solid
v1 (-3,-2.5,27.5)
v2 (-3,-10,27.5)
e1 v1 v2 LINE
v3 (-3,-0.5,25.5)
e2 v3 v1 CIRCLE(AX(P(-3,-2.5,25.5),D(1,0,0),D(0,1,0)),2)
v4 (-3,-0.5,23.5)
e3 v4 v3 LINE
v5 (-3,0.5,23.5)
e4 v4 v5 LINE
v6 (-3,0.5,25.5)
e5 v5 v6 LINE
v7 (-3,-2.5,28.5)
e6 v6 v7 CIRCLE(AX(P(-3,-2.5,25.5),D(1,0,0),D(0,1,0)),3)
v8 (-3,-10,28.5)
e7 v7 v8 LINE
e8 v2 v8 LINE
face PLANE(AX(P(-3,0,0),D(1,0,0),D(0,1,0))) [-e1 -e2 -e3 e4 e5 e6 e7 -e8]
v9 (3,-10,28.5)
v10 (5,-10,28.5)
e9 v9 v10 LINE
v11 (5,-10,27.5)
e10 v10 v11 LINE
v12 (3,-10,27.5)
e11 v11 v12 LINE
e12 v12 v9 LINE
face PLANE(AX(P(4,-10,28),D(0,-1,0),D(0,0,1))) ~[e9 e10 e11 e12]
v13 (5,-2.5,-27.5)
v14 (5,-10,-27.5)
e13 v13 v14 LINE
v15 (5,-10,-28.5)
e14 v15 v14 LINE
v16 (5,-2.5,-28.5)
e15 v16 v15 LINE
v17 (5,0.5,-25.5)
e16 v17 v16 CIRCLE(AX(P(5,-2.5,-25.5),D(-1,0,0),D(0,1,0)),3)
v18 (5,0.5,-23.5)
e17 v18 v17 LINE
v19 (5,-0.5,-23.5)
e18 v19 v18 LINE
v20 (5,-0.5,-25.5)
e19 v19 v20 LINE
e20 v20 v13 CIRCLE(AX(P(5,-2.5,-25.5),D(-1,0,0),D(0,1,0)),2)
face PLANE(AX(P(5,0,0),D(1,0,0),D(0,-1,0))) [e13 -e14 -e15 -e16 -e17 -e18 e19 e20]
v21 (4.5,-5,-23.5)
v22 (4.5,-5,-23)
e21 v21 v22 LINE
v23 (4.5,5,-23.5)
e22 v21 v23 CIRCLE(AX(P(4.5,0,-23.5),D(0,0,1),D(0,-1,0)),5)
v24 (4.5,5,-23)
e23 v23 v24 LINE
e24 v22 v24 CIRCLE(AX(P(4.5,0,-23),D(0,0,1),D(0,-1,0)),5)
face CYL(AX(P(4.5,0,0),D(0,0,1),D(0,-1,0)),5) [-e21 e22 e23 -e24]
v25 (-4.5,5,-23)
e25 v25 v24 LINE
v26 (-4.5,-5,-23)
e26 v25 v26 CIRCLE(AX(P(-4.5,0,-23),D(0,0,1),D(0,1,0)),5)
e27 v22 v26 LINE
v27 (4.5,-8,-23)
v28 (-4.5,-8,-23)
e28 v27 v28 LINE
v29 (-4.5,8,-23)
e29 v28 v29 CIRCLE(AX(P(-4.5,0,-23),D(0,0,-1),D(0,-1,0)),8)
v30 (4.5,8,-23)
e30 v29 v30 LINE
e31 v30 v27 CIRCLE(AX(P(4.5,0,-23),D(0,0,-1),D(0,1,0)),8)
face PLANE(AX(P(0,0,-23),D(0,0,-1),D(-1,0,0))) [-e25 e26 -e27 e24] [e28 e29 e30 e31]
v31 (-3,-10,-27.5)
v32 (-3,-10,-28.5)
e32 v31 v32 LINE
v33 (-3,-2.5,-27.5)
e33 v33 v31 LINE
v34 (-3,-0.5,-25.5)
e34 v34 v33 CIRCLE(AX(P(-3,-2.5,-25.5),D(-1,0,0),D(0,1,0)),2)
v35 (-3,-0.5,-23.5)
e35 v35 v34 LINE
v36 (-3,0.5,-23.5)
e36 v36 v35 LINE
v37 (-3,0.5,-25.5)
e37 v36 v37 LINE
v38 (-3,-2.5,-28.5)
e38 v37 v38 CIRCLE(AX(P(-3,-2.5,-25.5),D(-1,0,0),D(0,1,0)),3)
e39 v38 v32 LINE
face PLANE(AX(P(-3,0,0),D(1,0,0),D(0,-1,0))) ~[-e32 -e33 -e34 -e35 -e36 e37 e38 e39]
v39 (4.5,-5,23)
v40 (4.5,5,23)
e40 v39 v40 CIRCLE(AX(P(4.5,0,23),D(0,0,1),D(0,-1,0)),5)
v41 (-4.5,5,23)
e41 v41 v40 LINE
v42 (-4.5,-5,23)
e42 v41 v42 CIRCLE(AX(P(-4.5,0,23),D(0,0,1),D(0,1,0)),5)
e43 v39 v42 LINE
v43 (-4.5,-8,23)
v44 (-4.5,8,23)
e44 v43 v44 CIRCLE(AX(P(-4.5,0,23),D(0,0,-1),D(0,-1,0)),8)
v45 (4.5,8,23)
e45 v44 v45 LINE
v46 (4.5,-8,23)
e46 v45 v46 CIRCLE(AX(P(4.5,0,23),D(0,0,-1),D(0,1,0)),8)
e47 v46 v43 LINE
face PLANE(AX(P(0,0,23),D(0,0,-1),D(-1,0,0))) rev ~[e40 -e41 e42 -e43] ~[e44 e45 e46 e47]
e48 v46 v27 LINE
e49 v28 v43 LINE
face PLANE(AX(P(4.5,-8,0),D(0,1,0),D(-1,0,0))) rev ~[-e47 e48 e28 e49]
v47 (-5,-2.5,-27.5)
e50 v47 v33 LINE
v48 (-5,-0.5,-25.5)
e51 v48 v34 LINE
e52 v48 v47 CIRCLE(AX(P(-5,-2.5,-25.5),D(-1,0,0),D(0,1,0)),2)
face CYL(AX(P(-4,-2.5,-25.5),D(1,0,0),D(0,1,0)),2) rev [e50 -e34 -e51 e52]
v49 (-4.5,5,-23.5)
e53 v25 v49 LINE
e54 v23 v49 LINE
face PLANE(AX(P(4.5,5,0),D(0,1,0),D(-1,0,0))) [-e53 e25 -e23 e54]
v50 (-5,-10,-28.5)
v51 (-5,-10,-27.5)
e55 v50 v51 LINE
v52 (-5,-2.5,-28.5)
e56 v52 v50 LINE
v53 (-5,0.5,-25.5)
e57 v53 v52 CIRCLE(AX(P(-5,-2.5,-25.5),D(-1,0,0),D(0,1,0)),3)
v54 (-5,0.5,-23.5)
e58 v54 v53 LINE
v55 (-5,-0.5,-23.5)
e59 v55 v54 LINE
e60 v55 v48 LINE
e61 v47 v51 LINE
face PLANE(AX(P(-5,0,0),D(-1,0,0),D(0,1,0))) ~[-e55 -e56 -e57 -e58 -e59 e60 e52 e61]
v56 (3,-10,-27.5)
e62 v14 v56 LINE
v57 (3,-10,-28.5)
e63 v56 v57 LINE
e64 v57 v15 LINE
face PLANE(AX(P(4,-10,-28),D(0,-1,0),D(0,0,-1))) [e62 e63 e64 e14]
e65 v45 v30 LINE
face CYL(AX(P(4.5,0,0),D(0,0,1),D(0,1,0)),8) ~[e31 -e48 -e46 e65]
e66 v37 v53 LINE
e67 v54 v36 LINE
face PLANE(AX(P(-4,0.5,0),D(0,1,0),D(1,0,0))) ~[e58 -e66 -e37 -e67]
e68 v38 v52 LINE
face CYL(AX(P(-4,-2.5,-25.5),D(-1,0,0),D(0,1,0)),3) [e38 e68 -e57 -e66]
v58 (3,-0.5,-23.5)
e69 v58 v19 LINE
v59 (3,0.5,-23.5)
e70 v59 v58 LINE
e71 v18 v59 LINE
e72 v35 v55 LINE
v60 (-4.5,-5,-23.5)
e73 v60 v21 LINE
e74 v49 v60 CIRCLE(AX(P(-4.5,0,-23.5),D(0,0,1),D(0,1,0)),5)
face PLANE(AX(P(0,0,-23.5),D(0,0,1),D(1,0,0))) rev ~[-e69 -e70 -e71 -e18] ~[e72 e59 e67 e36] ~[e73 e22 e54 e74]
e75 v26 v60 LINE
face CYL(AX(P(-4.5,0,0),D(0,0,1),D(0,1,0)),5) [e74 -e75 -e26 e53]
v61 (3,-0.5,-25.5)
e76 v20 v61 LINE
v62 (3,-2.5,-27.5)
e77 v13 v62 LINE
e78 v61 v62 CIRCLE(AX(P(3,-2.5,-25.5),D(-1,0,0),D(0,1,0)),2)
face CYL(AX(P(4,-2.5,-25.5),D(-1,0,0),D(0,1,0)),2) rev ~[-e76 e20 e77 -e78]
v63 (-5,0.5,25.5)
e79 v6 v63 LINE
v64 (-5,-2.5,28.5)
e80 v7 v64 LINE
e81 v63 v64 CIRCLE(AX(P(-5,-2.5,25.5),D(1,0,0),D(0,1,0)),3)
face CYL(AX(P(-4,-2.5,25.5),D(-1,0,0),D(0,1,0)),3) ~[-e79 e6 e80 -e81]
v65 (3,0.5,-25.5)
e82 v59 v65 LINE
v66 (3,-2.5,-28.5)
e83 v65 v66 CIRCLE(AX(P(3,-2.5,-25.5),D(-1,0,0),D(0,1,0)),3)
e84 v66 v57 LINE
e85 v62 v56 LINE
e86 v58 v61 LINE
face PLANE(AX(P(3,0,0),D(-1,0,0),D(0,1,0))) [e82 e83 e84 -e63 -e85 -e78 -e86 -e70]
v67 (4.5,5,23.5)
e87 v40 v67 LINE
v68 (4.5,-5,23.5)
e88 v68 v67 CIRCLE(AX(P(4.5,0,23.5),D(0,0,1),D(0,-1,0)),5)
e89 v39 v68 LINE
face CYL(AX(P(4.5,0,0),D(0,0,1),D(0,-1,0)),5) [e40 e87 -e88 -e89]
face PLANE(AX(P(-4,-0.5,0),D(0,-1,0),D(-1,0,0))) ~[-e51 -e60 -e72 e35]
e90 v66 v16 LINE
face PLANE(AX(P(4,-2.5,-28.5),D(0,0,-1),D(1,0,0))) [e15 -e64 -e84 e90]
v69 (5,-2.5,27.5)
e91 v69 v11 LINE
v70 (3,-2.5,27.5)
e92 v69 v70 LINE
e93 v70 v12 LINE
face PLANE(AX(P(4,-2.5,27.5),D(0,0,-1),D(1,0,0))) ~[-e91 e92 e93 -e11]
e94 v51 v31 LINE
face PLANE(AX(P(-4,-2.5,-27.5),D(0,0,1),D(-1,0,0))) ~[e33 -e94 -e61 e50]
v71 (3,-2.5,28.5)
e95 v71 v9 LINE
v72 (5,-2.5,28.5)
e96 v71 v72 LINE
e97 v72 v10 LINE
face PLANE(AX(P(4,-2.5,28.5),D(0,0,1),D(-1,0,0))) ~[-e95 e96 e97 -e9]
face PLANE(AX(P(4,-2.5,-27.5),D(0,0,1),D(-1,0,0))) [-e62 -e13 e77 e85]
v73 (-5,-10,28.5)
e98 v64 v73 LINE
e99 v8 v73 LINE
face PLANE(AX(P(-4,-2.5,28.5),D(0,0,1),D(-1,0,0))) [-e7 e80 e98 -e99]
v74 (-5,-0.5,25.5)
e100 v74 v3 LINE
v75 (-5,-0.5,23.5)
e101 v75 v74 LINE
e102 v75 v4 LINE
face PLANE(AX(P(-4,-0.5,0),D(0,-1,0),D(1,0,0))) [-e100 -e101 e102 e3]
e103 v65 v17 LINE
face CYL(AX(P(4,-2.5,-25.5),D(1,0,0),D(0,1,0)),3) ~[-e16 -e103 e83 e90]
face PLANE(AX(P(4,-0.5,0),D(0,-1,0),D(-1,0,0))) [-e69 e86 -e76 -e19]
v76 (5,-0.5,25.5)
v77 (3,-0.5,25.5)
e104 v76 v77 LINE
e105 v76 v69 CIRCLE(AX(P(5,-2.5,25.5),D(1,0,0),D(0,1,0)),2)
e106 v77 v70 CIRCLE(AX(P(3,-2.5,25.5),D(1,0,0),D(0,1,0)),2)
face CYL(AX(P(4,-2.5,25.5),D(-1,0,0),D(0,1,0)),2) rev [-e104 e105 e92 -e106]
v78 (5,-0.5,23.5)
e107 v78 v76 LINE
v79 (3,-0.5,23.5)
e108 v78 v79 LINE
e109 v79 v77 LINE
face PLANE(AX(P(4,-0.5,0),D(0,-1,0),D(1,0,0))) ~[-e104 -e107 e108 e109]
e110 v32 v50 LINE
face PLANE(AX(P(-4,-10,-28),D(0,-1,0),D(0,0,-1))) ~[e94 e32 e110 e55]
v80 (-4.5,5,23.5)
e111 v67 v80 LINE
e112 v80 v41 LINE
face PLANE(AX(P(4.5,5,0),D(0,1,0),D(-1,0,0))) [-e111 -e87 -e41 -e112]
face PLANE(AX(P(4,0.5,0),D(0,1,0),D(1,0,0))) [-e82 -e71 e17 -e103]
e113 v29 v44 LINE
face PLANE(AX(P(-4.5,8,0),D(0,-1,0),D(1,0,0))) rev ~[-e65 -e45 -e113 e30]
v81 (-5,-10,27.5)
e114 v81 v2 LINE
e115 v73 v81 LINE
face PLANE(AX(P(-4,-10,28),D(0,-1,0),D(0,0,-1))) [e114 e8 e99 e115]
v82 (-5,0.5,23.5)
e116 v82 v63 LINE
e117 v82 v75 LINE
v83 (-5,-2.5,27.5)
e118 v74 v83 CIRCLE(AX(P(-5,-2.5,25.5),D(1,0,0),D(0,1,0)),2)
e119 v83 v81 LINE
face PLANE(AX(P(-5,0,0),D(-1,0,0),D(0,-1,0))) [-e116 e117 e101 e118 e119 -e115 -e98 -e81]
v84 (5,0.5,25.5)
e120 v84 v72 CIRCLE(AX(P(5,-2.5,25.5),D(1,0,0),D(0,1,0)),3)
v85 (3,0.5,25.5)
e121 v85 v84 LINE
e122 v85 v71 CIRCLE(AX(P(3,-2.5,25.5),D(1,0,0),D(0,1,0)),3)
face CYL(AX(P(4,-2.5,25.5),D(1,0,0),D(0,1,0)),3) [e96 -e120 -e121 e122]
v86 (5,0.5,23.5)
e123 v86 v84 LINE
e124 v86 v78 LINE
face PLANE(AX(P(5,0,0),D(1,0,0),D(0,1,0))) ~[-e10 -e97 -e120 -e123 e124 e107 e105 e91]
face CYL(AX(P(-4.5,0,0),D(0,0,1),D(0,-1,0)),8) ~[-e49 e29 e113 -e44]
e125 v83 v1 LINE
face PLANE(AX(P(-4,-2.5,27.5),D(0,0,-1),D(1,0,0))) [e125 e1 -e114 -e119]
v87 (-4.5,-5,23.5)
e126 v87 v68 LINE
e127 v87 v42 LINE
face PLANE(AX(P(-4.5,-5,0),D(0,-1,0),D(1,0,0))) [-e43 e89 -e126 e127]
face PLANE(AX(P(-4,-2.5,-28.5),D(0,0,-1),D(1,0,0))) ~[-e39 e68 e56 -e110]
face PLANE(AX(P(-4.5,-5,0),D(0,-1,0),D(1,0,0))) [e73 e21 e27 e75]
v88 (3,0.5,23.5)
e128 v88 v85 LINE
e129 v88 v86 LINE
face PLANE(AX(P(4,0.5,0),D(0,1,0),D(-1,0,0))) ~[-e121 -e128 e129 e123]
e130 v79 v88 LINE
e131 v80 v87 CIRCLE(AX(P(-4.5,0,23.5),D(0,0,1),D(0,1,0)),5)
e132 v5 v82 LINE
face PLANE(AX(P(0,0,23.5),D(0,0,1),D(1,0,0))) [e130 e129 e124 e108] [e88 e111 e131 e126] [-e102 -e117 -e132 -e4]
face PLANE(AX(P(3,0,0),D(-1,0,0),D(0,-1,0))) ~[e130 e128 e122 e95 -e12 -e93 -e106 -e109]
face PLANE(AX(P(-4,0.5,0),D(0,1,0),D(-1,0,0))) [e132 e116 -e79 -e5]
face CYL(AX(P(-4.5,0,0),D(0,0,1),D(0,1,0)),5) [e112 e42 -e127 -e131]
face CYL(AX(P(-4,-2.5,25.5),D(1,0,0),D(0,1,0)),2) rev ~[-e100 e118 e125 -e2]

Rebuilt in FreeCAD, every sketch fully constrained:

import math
import FreeCAD as App
import Part
import Sketcher

V = App.Vector


def add_polygon(sketch, points):
    """Adds a closed chain of lines whose ends are joined by coincident constraints."""
    first, n = sketch.GeometryCount, len(points)
    for a, b in zip(points, points[1:] + points[:1]):
        sketch.addGeometry(Part.LineSegment(App.Vector(*a, 0), App.Vector(*b, 0)), False)
    for i in range(n):
        sketch.addConstraint(Sketcher.Constraint("Coincident", first + i, 2, first + (i + 1) % n, 1))

doc = App.newDocument("Part")
body = doc.addObject("PartDesign::Body", "Body")

# Sketch on XY plane
sketch1 = body.newObject("Sketcher::SketchObject", "Sketch")
sketch1.AttachmentSupport = (doc.getObject("XY_Plane"), [""])
sketch1.MapMode = "FlatFace"
sketch1.addGeometry([
    Part.LineSegment(V(4, 8, 0), V(-4, 8, 0)),
    Part.ArcOfCircle(Part.Circle(V(-4, 0, 0), V(0, 0, 1), 8), math.radians(90), math.radians(270)),
    Part.LineSegment(V(-4, -8, 0), V(4, -8, 0)),
    Part.ArcOfCircle(Part.Circle(V(4, 0, 0), V(0, 0, 1), 8), math.radians(-90), math.radians(90)),
], False)
sketch1.addConstraint([
    Sketcher.Constraint("Tangent", 0, 2, 1, 1),
    Sketcher.Constraint("Tangent", 1, 2, 2, 1),
    Sketcher.Constraint("Tangent", 2, 2, 3, 1),
    Sketcher.Constraint("Tangent", 3, 2, 0, 1),
    Sketcher.Constraint("Horizontal", 0),
    Sketcher.Constraint("Horizontal", 2),
    Sketcher.Constraint("Symmetric", 1, 3, 3, 3, -1, 1),
    Sketcher.Constraint("Radius", 1, 8.0),
    Sketcher.Constraint("DistanceX", 0, 2, 0, 1, 9.0),
])
pad1 = body.newObject("PartDesign::Pad", "Pad")
pad1.Profile = sketch1
pad1.Length = 46
pad1.Midplane = True

# Sketch on XY plane
sketch2 = body.newObject("Sketcher::SketchObject", "Sketch001")
sketch2.AttachmentSupport = (doc.getObject("XY_Plane"), [""])
sketch2.MapMode = "FlatFace"
sketch2.addGeometry([
    Part.LineSegment(V(-4, -5, 0), V(4, -5, 0)),
    Part.ArcOfCircle(Part.Circle(V(4, 0, 0), V(0, 0, 1), 5), math.radians(-90), math.radians(90)),
    Part.LineSegment(V(4, 5, 0), V(-4, 5, 0)),
    Part.ArcOfCircle(Part.Circle(V(-4, 0, 0), V(0, 0, 1), 5), math.radians(90), math.radians(270)),
], False)
sketch2.addConstraint([
    Sketcher.Constraint("Tangent", 0, 2, 1, 1),
    Sketcher.Constraint("Tangent", 1, 2, 2, 1),
    Sketcher.Constraint("Tangent", 2, 2, 3, 1),
    Sketcher.Constraint("Tangent", 3, 2, 0, 1),
    Sketcher.Constraint("Horizontal", 0),
    Sketcher.Constraint("Horizontal", 2),
    Sketcher.Constraint("Symmetric", 1, 3, 3, 3, -1, 1),
    Sketcher.Constraint("Radius", 1, 5.0),
    Sketcher.Constraint("DistanceX", 0, 1, 0, 2, 9.0),
])
pad2 = body.newObject("PartDesign::Pad", "Pad001")
pad2.Profile = sketch2
pad2.Length = 47
pad2.Midplane = True

# Sketch on XY plane
sketch3 = body.newObject("Sketcher::SketchObject", "Sketch002")
sketch3.AttachmentSupport = (doc.getObject("XY_Plane"), [""])
sketch3.MapMode = "FlatFace"
add_polygon(sketch3, [(-5, 0.5), (-5, -0.5), (-3, -0.5), (-3, 0.5)])  # lines 0-3
sketch3.addConstraint([
    Sketcher.Constraint("Vertical", 0),
    Sketcher.Constraint("Horizontal", 1),
    Sketcher.Constraint("Vertical", 2),
    Sketcher.Constraint("Horizontal", 3),
    Sketcher.Constraint("DistanceX", 1, 1, 1, 2, 2.0),
    Sketcher.Constraint("DistanceY", 0, 2, 0, 1, 1.0),
    Sketcher.Constraint("DistanceX", 0, 2, -1, 1, 5.0),
    Sketcher.Constraint("DistanceY", 0, 2, -1, 1, 0.5),
])

# Sketch on YZ plane
sketch4 = body.newObject("Sketcher::SketchObject", "Sketch003")
sketch4.AttachmentSupport = (doc.getObject("YZ_Plane"), [""])
sketch4.MapMode = "FlatFace"
sketch4.AttachmentOffset = App.Placement(V(0, 0, -4), App.Rotation())
sketch4.addGeometry([
    Part.LineSegment(V(0, 0, 0), V(0, 25.5, 0)),
    Part.ArcOfCircle(Part.Circle(V(-2.5, 25.5, 0), V(0, 0, 1), 2.5), math.radians(0), math.radians(90)),
    Part.LineSegment(V(-2.5, 28, 0), V(-10, 28, 0)),
], False)
sketch4.addConstraint([
    Sketcher.Constraint("Tangent", 0, 2, 1, 1),
    Sketcher.Constraint("Tangent", 1, 2, 2, 1),
    Sketcher.Constraint("Vertical", 0),
    Sketcher.Constraint("Horizontal", 2),
    Sketcher.Constraint("Coincident", 0, 1, -1, 1),
    Sketcher.Constraint("Radius", 1, 2.5),
    Sketcher.Constraint("DistanceX", 2, 2, 2, 1, 7.5),
    Sketcher.Constraint("DistanceY", 0, 1, 0, 2, 25.5),
])
doc.recompute()

additivepipe = body.newObject("PartDesign::AdditivePipe", "AdditivePipe")
additivepipe.Profile = sketch3
additivepipe.Spine = (sketch4, ["Edge1", "Edge2", "Edge3"])
doc.recompute()

mirrored = body.newObject("PartDesign::Mirrored", "Mirrored")
mirrored.Originals = [additivepipe]
mirrored.MirrorPlane = (doc.getObject("YZ_Plane"), [""])
body.Tip = mirrored
doc.recompute()

mirrored2 = body.newObject("PartDesign::Mirrored", "Mirrored001")
mirrored2.Originals = [additivepipe]
mirrored2.MirrorPlane = (doc.getObject("XY_Plane"), [""])
body.Tip = mirrored2

# Sketch on XY plane
sketch5 = body.newObject("Sketcher::SketchObject", "Sketch004")
sketch5.AttachmentSupport = (doc.getObject("XY_Plane"), [""])
sketch5.MapMode = "FlatFace"
add_polygon(sketch5, [(5, 0.5), (5, -0.5), (3, -0.5), (3, 0.5)])  # lines 0-3
sketch5.addConstraint([
    Sketcher.Constraint("Vertical", 0),
    Sketcher.Constraint("Horizontal", 1),
    Sketcher.Constraint("Vertical", 2),
    Sketcher.Constraint("Horizontal", 3),
    Sketcher.Constraint("DistanceX", 1, 2, 1, 1, 2.0),
    Sketcher.Constraint("DistanceY", 0, 2, 0, 1, 1.0),
    Sketcher.Constraint("DistanceX", -1, 1, 0, 2, 5.0),
    Sketcher.Constraint("DistanceY", 0, 2, -1, 1, 0.5),
])

# Sketch on YZ plane
sketch6 = body.newObject("Sketcher::SketchObject", "Sketch005")
sketch6.AttachmentSupport = (doc.getObject("YZ_Plane"), [""])
sketch6.MapMode = "FlatFace"
sketch6.AttachmentOffset = App.Placement(V(0, 0, 4), App.Rotation())
sketch6.addGeometry([
    Part.LineSegment(V(0, 0, 0), V(0, -25.5, 0)),
    Part.ArcOfCircle(Part.Circle(V(-2.5, -25.5, 0), V(0, 0, 1), 2.5), math.radians(-90), math.radians(0)),
    Part.LineSegment(V(-2.5, -28, 0), V(-10, -28, 0)),
], False)
sketch6.addConstraint([
    Sketcher.Constraint("Tangent", 0, 2, 1, 2),
    Sketcher.Constraint("Tangent", 1, 1, 2, 1),
    Sketcher.Constraint("Vertical", 0),
    Sketcher.Constraint("Horizontal", 2),
    Sketcher.Constraint("Coincident", 0, 1, -1, 1),
    Sketcher.Constraint("Radius", 1, 2.5),
    Sketcher.Constraint("DistanceX", 2, 2, 2, 1, 7.5),
    Sketcher.Constraint("DistanceY", 0, 2, 0, 1, 25.5),
])
doc.recompute()

additivepipe2 = body.newObject("PartDesign::AdditivePipe", "AdditivePipe001")
additivepipe2.Profile = sketch5
additivepipe2.Spine = (sketch6, ["Edge1", "Edge2", "Edge3"])

doc.recompute()
